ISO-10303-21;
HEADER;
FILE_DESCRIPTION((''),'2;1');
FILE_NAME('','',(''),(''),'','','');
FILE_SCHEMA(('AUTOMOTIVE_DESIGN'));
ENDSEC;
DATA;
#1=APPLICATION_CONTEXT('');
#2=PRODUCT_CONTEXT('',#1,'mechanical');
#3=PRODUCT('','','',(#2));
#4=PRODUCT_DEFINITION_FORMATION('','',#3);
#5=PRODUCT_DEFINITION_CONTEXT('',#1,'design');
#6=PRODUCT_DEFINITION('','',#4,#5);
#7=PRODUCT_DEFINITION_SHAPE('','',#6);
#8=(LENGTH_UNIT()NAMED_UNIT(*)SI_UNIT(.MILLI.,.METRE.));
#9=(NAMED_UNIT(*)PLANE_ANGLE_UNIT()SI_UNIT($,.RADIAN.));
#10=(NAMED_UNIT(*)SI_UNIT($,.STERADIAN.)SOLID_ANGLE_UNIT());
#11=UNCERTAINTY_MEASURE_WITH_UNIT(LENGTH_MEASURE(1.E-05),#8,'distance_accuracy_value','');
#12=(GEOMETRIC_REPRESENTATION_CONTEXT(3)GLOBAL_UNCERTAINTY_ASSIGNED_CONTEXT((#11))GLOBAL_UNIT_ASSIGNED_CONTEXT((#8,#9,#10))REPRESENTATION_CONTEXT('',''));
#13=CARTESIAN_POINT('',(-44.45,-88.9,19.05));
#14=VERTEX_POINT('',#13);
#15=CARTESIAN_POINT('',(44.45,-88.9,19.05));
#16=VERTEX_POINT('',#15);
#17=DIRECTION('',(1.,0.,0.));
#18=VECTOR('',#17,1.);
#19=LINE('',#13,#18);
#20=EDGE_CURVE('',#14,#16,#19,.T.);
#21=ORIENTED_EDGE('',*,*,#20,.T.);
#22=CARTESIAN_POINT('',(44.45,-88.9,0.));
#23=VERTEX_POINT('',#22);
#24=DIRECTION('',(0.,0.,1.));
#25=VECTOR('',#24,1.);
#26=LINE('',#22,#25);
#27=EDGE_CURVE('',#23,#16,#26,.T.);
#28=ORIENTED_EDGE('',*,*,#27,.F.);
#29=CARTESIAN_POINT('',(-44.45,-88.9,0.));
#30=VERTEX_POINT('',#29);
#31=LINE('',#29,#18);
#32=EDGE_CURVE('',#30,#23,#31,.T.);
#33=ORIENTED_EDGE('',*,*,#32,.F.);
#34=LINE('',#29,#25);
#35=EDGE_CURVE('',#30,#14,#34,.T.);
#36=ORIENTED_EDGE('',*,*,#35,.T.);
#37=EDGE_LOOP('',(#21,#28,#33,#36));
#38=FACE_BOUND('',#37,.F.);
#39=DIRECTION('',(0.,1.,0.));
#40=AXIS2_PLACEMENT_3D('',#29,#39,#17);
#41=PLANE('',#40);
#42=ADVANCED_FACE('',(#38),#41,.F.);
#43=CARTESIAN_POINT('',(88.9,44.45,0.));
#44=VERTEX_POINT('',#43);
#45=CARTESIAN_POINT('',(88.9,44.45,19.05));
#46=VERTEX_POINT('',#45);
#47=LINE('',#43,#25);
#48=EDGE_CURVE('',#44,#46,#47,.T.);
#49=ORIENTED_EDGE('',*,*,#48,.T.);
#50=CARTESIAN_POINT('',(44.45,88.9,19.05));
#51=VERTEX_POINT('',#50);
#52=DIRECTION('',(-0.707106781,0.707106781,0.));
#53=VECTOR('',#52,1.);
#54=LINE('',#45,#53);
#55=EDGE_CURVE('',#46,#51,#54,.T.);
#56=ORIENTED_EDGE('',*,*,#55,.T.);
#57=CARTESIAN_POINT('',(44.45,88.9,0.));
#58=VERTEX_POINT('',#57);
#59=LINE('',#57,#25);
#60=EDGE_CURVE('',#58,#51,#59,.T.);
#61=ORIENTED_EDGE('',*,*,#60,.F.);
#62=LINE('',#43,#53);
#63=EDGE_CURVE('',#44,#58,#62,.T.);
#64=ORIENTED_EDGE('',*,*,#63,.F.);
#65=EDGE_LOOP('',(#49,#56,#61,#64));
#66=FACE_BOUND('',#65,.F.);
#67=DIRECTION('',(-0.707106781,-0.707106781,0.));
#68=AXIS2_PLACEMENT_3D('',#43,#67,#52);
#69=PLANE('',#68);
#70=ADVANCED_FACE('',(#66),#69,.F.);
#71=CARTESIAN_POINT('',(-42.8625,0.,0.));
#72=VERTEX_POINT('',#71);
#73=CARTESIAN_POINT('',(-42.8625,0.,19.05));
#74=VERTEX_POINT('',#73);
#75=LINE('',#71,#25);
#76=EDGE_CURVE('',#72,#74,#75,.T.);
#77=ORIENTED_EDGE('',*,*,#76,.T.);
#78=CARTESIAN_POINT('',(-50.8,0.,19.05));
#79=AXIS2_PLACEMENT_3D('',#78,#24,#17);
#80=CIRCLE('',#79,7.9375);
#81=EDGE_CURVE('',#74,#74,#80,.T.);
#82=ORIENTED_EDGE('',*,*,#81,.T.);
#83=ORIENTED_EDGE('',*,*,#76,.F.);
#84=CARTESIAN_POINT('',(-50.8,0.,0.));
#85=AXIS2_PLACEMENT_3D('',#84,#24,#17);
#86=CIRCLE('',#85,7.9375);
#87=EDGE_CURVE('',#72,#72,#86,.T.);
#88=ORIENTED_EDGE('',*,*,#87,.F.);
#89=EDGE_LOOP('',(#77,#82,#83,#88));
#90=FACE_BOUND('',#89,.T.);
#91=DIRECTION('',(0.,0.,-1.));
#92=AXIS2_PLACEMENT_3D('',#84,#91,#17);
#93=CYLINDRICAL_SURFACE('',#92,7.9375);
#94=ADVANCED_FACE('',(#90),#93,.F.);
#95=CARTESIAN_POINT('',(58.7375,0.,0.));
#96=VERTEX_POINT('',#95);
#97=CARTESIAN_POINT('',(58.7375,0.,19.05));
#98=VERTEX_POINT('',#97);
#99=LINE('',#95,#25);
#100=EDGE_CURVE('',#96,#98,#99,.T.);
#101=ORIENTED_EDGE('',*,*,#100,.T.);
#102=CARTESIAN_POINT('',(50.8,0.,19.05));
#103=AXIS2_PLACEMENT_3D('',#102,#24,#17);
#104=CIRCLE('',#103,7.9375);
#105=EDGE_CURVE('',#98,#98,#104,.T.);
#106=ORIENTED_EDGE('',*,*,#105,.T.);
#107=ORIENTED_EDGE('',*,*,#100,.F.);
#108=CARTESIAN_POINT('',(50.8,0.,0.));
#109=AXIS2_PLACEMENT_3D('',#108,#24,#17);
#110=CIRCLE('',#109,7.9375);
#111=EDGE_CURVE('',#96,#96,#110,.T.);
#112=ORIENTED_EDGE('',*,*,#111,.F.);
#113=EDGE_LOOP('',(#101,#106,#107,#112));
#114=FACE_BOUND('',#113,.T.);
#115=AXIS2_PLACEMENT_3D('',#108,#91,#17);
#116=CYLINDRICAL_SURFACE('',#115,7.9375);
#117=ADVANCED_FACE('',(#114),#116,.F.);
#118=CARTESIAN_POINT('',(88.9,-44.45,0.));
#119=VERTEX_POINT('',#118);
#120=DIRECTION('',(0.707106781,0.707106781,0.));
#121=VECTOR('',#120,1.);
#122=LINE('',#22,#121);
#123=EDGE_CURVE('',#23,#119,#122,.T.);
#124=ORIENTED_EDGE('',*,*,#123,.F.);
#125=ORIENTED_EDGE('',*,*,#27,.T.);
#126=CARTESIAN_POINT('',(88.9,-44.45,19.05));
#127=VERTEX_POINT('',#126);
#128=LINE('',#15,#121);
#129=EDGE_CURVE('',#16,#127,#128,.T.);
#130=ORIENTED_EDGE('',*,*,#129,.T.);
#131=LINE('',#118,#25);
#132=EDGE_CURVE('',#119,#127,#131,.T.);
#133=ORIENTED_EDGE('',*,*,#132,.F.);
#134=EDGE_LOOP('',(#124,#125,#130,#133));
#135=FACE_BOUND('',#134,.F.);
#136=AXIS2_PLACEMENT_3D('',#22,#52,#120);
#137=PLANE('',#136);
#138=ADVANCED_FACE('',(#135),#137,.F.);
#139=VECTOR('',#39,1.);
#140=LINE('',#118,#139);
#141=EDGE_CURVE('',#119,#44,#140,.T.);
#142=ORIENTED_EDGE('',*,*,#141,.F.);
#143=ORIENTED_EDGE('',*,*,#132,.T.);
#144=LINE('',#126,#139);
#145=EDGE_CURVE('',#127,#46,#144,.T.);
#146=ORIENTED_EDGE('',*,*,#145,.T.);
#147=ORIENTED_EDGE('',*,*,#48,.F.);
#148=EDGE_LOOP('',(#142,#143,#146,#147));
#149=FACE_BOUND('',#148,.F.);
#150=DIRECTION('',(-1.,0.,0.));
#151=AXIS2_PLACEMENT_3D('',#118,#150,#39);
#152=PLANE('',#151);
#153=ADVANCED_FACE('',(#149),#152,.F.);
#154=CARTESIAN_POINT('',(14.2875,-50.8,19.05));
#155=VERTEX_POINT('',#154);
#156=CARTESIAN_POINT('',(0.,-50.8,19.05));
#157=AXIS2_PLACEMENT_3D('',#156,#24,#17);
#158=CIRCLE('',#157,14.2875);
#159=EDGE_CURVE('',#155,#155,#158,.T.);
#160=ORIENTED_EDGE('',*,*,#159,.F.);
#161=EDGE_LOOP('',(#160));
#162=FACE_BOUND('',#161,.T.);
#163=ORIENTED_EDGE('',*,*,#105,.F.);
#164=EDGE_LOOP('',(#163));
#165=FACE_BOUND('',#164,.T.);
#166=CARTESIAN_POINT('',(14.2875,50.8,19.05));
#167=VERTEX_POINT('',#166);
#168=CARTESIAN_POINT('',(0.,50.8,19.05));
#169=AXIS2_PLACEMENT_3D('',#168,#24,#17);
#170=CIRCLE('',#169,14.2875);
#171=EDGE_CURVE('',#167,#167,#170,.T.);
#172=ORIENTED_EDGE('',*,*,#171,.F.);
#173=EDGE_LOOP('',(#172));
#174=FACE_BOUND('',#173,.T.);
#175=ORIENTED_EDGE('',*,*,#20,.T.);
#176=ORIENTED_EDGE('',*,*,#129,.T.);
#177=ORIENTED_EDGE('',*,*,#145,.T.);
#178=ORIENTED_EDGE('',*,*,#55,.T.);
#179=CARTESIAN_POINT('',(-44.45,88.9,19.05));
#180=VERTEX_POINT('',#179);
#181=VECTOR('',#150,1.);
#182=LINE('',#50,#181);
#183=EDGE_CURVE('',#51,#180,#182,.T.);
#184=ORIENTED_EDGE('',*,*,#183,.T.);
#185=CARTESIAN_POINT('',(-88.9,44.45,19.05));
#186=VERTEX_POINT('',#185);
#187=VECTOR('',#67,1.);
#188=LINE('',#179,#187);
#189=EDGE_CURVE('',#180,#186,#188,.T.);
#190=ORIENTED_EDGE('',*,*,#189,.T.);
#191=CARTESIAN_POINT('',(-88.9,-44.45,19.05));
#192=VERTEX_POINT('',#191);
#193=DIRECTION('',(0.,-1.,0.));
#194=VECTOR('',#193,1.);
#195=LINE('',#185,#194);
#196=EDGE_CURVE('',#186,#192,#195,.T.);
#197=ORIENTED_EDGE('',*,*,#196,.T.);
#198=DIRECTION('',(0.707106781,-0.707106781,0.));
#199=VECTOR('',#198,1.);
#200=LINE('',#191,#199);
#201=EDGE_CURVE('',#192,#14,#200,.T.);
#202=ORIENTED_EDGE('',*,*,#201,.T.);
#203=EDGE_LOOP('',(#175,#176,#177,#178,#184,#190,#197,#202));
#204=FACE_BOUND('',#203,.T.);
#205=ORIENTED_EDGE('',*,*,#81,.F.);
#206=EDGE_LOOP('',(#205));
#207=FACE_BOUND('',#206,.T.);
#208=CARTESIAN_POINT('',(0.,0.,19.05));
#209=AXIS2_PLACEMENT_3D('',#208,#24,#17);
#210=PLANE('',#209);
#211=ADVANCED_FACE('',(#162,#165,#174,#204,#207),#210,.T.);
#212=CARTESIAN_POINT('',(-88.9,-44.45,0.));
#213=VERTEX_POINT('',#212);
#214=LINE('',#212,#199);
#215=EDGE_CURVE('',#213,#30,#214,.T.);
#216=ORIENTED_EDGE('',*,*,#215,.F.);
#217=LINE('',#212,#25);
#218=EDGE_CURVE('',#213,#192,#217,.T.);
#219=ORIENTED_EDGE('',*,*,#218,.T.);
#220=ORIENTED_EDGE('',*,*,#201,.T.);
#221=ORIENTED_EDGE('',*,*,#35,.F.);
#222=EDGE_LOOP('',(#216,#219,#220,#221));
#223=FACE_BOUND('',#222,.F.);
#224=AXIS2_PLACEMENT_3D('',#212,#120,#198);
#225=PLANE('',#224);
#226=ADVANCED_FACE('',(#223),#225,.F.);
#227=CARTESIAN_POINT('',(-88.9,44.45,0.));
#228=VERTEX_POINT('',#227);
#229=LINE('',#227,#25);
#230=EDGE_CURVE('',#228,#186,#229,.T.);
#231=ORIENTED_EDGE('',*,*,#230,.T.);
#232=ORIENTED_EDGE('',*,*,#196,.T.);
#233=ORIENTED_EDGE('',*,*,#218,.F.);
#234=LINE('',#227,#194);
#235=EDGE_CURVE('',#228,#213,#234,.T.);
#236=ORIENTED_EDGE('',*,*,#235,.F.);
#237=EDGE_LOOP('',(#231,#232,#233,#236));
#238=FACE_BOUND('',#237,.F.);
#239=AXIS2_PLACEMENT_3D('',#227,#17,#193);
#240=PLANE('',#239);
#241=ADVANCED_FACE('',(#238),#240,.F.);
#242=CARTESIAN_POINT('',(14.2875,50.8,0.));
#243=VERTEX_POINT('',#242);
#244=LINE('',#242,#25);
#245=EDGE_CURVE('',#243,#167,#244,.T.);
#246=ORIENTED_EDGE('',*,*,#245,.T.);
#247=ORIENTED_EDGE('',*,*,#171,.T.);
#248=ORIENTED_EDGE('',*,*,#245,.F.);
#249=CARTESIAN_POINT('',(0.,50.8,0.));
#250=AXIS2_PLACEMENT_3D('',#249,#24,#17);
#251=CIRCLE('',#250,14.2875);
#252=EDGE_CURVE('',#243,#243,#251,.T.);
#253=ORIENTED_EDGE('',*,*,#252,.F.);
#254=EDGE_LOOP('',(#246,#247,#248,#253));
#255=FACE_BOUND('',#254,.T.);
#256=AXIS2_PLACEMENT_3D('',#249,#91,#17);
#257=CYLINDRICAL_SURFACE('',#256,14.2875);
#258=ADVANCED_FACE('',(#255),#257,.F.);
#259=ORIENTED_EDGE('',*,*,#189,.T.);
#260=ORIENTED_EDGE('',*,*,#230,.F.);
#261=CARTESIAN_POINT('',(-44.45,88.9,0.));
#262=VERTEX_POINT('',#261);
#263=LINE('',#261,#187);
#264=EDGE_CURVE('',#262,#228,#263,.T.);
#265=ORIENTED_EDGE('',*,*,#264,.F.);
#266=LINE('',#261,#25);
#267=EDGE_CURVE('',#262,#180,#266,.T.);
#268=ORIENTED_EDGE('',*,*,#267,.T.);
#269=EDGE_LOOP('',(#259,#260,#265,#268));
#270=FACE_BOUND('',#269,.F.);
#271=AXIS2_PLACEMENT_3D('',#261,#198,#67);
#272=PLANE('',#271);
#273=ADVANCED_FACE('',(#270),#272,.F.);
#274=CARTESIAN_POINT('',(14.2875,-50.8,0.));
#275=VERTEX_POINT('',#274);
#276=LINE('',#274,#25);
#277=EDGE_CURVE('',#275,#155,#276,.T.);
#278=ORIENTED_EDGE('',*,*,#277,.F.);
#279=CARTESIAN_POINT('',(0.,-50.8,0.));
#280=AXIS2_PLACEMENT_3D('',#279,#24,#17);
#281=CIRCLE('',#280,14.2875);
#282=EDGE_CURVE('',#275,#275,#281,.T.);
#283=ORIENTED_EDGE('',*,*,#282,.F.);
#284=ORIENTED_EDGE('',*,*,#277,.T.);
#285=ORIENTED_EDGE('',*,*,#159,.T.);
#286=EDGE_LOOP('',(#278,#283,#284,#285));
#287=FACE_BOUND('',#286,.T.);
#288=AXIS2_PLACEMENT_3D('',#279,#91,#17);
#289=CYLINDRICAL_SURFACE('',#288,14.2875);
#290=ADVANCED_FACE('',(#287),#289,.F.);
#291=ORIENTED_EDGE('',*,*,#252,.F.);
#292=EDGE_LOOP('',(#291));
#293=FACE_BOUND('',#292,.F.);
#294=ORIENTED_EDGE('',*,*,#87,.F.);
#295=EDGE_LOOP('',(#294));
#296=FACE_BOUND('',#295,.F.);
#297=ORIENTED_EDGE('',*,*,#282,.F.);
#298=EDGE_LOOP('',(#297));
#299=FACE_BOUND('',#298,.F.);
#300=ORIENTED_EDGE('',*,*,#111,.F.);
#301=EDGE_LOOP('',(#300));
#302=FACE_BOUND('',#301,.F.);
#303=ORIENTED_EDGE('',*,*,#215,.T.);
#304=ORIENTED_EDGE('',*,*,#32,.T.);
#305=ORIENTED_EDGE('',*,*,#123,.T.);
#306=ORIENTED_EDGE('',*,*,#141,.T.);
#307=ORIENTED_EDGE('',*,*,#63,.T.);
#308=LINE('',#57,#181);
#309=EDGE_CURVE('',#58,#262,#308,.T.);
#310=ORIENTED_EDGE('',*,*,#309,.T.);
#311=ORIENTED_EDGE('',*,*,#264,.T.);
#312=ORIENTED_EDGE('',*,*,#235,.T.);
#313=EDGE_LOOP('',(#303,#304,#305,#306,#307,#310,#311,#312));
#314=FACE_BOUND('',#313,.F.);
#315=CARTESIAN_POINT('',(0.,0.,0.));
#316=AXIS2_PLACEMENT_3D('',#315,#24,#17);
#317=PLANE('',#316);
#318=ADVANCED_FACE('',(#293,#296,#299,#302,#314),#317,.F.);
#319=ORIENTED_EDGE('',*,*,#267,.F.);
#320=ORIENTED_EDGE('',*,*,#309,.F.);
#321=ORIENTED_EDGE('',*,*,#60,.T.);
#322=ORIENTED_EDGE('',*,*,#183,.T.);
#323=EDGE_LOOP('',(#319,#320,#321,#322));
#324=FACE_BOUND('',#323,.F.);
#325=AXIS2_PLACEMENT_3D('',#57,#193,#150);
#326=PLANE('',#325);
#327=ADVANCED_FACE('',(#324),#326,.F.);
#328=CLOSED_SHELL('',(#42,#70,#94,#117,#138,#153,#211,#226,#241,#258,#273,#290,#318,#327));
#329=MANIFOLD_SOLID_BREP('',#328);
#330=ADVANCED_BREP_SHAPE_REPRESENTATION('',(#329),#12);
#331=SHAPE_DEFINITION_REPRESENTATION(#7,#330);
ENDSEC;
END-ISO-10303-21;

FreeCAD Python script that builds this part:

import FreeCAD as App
import Part
import Sketcher
from FreeCAD import Vector
Q = App.Units.Quantity

doc = App.newDocument("Part")
params = doc.addObject("Spreadsheet::Sheet", "Params")
for row, (alias, value) in enumerate([
    ("sketch1_diameter", "1.125 in"),
    ("sketch1_diameter2", "0.625 in"),
    ("sketch1_width", "3.5 in"),
    ("pad1_length", "0.75 in"),
], start=1):
    params.set(f"A{row}", alias)
    params.set(f"B{row}", "=" + value)
    params.setAlias(f"B{row}", alias)

body = doc.addObject("PartDesign::Body", "Body")

sketch1 = body.newObject("Sketcher::SketchObject", "Sketch")
sketch1.AttachmentSupport = (doc.getObject("XY_Plane"), [""])
sketch1.MapMode = "FlatFace"
sketch1.addGeometry(Part.LineSegment(Vector(89, 44, 0), Vector(44, 89, 0)), False)
sketch1.addGeometry(Part.LineSegment(Vector(44, 89, 0), Vector(-44, 89, 0)), False)
sketch1.addGeometry(Part.LineSegment(Vector(-44, 89, 0), Vector(-89, 44, 0)), False)
sketch1.addGeometry(Part.LineSegment(Vector(-89, 44, 0), Vector(-89, -44, 0)), False)
sketch1.addGeometry(Part.LineSegment(Vector(-89, -44, 0), Vector(-44, -89, 0)), False)
sketch1.addGeometry(Part.LineSegment(Vector(-44, -89, 0), Vector(44, -89, 0)), False)
sketch1.addGeometry(Part.LineSegment(Vector(44, -89, 0), Vector(89, -44, 0)), False)
sketch1.addGeometry(Part.LineSegment(Vector(89, -44, 0), Vector(89, 44, 0)), False)
sketch1.addGeometry(Part.Circle(Vector(0, -51, 0), Vector(0, 0, 1), 14), False)
sketch1.addGeometry(Part.Circle(Vector(-51, 0, 0), Vector(0, 0, 1), 8), False)
sketch1.addGeometry(Part.Circle(Vector(51, 0, 0), Vector(0, 0, 1), 8), False)
sketch1.addGeometry(Part.Circle(Vector(0, 51, 0), Vector(0, 0, 1), 14), False)
sketch1.addConstraint(Sketcher.Constraint("Coincident", 0, 2, 1, 1))
sketch1.addConstraint(Sketcher.Constraint("Coincident", 1, 2, 2, 1))
sketch1.addConstraint(Sketcher.Constraint("Coincident", 2, 2, 3, 1))
sketch1.addConstraint(Sketcher.Constraint("Coincident", 3, 2, 4, 1))
sketch1.addConstraint(Sketcher.Constraint("Coincident", 4, 2, 5, 1))
sketch1.addConstraint(Sketcher.Constraint("Coincident", 5, 2, 6, 1))
sketch1.addConstraint(Sketcher.Constraint("Coincident", 6, 2, 7, 1))
sketch1.addConstraint(Sketcher.Constraint("Coincident", 7, 2, 0, 1))
sketch1.addConstraint(Sketcher.Constraint("Horizontal", 1))
sketch1.addConstraint(Sketcher.Constraint("Vertical", 3))
sketch1.addConstraint(Sketcher.Constraint("Horizontal", 5))
sketch1.addConstraint(Sketcher.Constraint("Vertical", 7))
sketch1.addConstraint(Sketcher.Constraint("Equal", 9, 10))
sketch1.addConstraint(Sketcher.Constraint("Equal", 8, 11))
sketch1.addConstraint(Sketcher.Constraint("Symmetric", 9, 3, 10, 3, -1, 1))
sketch1.addConstraint(Sketcher.Constraint("Symmetric", 8, 3, 11, 3, -1, 1))
sketch1.addConstraint(Sketcher.Constraint("Symmetric", 0, 2, 4, 2, -1, 1))
sketch1.addConstraint(Sketcher.Constraint("Symmetric", 2, 2, 6, 2, -1, 1))
sketch1.addConstraint(Sketcher.Constraint("PointOnObject", 8, 3, -2))
sketch1.addConstraint(Sketcher.Constraint("PointOnObject", 9, 3, -1))
sketch1.addConstraint(Sketcher.Constraint("Perpendicular", 0, 2))
sketch1.addConstraint(Sketcher.Constraint("Perpendicular", 2, 4))
sketch1.addConstraint(Sketcher.Constraint("Perpendicular", 4, 6))
sketch1.addConstraint(Sketcher.Constraint("Horizontal", 3, 2, 6, 2))
sketch1.addConstraint(Sketcher.Constraint("Vertical", 1, 2, 4, 2))
sketch1.addConstraint(Sketcher.Constraint("Equal", 5, 3))
sketch1.addConstraint(Sketcher.Constraint("Diameter", 8, Q("1.125 in")))
sketch1.addConstraint(Sketcher.Constraint("Diameter", 9, Q("0.625 in")))
sketch1.addConstraint(Sketcher.Constraint("DistanceX", 1, 2, 1, 1, Q("3.5 in")))
sketch1.addConstraint(Sketcher.Constraint("DistanceY", 8, 3, -1, 1, Q("2 in")))
sketch1.addConstraint(Sketcher.Constraint("DistanceX", 9, 3, -1, 1, Q("2 in")))
sketch1.addConstraint(Sketcher.Constraint("DistanceY", -1, 1, 0, 2, Q("3.5 in")))
sketch1.setExpression("Constraints[26]", "Params.sketch1_diameter")
sketch1.setExpression("Constraints[27]", "Params.sketch1_diameter2")
sketch1.setExpression("Constraints[28]", "Params.sketch1_width")
pad1 = body.newObject("PartDesign::Pad", "Pad")
pad1.Profile = sketch1
pad1.setExpression("Length", "Params.pad1_length")

doc.recompute()
